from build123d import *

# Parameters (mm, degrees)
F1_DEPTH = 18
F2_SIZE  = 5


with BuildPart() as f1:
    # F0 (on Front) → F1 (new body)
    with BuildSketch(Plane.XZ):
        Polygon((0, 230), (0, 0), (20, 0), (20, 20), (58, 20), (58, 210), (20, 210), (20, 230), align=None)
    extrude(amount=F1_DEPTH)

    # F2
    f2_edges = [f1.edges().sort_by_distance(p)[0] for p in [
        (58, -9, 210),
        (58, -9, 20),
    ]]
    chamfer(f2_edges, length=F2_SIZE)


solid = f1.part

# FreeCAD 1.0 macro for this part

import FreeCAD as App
import Part
import Sketcher
Q = App.Units.Quantity


def edges_at(feature, points):
    """Names of the edges that pass closest to the given points."""
    edges = feature.Shape.Edges
    near = lambda p: min(range(len(edges)), key=lambda i: edges[i].distToShape(Part.Vertex(*p))[0])
    return sorted({f"Edge{near(p) + 1}" for p in points})

doc = App.newDocument("Part")
body = doc.addObject("PartDesign::Body", "Body")

# Sketch on XZ plane
sketch1 = body.newObject("Sketcher::SketchObject", "Sketch")
sketch1.AttachmentSupport = (doc.getObject("XZ_Plane"), [""])
sketch1.MapMode = "FlatFace"
sketch1.addGeometry([
    Part.LineSegment(App.Vector(0, 230, 0), App.Vector(0, 0, 0)),  # 0
    Part.LineSegment(App.Vector(0, 0, 0), App.Vector(20, 0, 0)),  # 1
    Part.LineSegment(App.Vector(20, 0, 0), App.Vector(20, 20, 0)),  # 2
    Part.LineSegment(App.Vector(20, 20, 0), App.Vector(58, 20, 0)),  # 3
    Part.LineSegment(App.Vector(58, 20, 0), App.Vector(58, 210, 0)),  # 4
    Part.LineSegment(App.Vector(58, 210, 0), App.Vector(20, 210, 0)),  # 5
    Part.LineSegment(App.Vector(20, 210, 0), App.Vector(20, 230, 0)),  # 6
    Part.LineSegment(App.Vector(20, 230, 0), App.Vector(0, 230, 0)),  # 7
], False)
sketch1.addConstraint([
    Sketcher.Constraint("Coincident", 0, 2, 1, 1),
    Sketcher.Constraint("Coincident", 1, 2, 2, 1),
    Sketcher.Constraint("Coincident", 2, 2, 3, 1),
    Sketcher.Constraint("Coincident", 3, 2, 4, 1),
    Sketcher.Constraint("Coincident", 4, 2, 5, 1),
    Sketcher.Constraint("Coincident", 5, 2, 6, 1),
    Sketcher.Constraint("Coincident", 6, 2, 7, 1),
    Sketcher.Constraint("Coincident", 7, 2, 0, 1),
    Sketcher.Constraint("Vertical", 0),
    Sketcher.Constraint("Horizontal", 1),
    Sketcher.Constraint("Vertical", 2),
    Sketcher.Constraint("Horizontal", 3),
    Sketcher.Constraint("Vertical", 4),
    Sketcher.Constraint("Horizontal", 5),
    Sketcher.Constraint("Vertical", 6),
    Sketcher.Constraint("Horizontal", 7),
    Sketcher.Constraint("Coincident", 0, 2, -1, 1),
    Sketcher.Constraint("Vertical", 2, 2, 5, 2),
    Sketcher.Constraint("Equal", 7, 2),
    Sketcher.Constraint("Equal", 2, 6),
    Sketcher.Constraint("DistanceX", 1, 1, 1, 2, Q("20 mm")),
    Sketcher.Constraint("DistanceX", 3, 1, 3, 2, Q("38 mm")),
    Sketcher.Constraint("DistanceY", 0, 2, 0, 1, Q("230 mm")),
])
pad1 = body.newObject("PartDesign::Pad", "Pad")
pad1.Profile = sketch1
pad1.Length = 18
doc.recompute()

chamfer = body.newObject("PartDesign::Chamfer", "Chamfer")
chamfer.Base = (pad1, edges_at(pad1, [(58, -9, 210), (58, -9, 20)]))
chamfer.Size = 5

doc.recompute()
